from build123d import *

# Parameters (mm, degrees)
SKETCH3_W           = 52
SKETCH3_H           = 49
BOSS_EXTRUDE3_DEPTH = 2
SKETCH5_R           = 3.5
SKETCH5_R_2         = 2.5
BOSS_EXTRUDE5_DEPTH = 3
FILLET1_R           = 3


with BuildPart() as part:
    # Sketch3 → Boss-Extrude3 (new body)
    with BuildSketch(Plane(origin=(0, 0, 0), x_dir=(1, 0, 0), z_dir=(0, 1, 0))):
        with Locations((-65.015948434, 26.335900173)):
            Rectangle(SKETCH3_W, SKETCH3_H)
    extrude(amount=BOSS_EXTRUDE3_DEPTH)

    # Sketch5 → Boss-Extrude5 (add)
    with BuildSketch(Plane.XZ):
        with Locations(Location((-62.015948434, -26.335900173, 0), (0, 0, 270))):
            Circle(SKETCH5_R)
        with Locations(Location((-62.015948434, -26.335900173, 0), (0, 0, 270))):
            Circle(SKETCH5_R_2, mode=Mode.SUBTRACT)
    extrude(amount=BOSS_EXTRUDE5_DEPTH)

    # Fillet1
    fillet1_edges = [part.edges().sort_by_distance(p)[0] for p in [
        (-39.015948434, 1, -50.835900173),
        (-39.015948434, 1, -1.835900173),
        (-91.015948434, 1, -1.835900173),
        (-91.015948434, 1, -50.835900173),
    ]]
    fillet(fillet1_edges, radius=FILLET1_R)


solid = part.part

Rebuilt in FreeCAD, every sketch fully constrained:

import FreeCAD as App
import Part
import Sketcher
from FreeCAD import Vector
Q = App.Units.Quantity


def edges_at(feature, points):
    """Names of the edges that pass closest to the given points."""
    edges = feature.Shape.Edges
    near = lambda p: min(range(len(edges)), key=lambda i: edges[i].distToShape(Part.Vertex(*p))[0])
    return sorted({f"Edge{near(p) + 1}" for p in points})

doc = App.newDocument("Part")
params = doc.addObject("Spreadsheet::Sheet", "Params")
for row, (alias, value) in enumerate([
    ("sketch1_width", "52 mm"),
    ("sketch1_height", "49 mm"),
    ("pad1_length", "2 mm"),
    ("sketch2_diameter", "7 mm"),
    ("sketch2_diameter2", "5 mm"),
    ("pad2_length", "3 mm"),
    ("fillet_radius", "3 mm"),
], start=1):
    params.set(f"A{row}", alias)
    params.set(f"B{row}", "=" + value)
    params.setAlias(f"B{row}", alias)

body = doc.addObject("PartDesign::Body", "Body")

# Sketch on XZ plane
sketch1 = body.newObject("Sketcher::SketchObject", "Sketch")
sketch1.AttachmentSupport = (doc.getObject("XZ_Plane"), [""])
sketch1.MapMode = "FlatFace"
sketch1.addGeometry([
    Part.LineSegment(Vector(-91, -51, 0), Vector(-91, -2, 0)),
    Part.LineSegment(Vector(-91, -2, 0), Vector(-39, -2, 0)),
    Part.LineSegment(Vector(-39, -2, 0), Vector(-39, -51, 0)),
    Part.LineSegment(Vector(-39, -51, 0), Vector(-91, -51, 0)),
], False)
sketch1.addConstraint([
    Sketcher.Constraint("Coincident", 0, 2, 1, 1),
    Sketcher.Constraint("Coincident", 1, 2, 2, 1),
    Sketcher.Constraint("Coincident", 2, 2, 3, 1),
    Sketcher.Constraint("Coincident", 3, 2, 0, 1),
    Sketcher.Constraint("Vertical", 0),
    Sketcher.Constraint("Horizontal", 1),
    Sketcher.Constraint("Vertical", 2),
    Sketcher.Constraint("Horizontal", 3),
    Sketcher.Constraint("DistanceX", 1, 1, 1, 2, Q("52 mm")),
    Sketcher.Constraint("DistanceY", 0, 1, 0, 2, Q("49 mm")),
    Sketcher.Constraint("DistanceY", 0, 2, -1, 1, Q("1.8359 mm")),
    Sketcher.Constraint("DistanceX", 0, 2, -1, 1, Q("91.015948 mm")),
])
sketch1.setExpression("Constraints[8]", "Params.sketch1_width")
sketch1.setExpression("Constraints[9]", "Params.sketch1_height")
pad1 = body.newObject("PartDesign::Pad", "Pad")
pad1.Profile = sketch1
pad1.setExpression("Length", "Params.pad1_length")
pad1.Reversed = True

# Sketch on XZ plane
sketch2 = body.newObject("Sketcher::SketchObject", "Sketch001")
sketch2.AttachmentSupport = (doc.getObject("XZ_Plane"), [""])
sketch2.MapMode = "FlatFace"
sketch2.addGeometry([
    Part.Circle(Vector(-62, -26.3, 0), Vector(0, 0, 1), 3.5),
    Part.Circle(Vector(-62, -26.3, 0), Vector(0, 0, 1), 2.5),
], False)
sketch2.addConstraint([
    Sketcher.Constraint("Coincident", 1, 3, 0, 3),
    Sketcher.Constraint("Diameter", 0, Q("7 mm")),
    Sketcher.Constraint("Diameter", 1, Q("5 mm")),
    Sketcher.Constraint("DistanceY", 0, 3, -1, 1, Q("26.3359 mm")),
    Sketcher.Constraint("DistanceX", 0, 3, -1, 1, Q("62.015948 mm")),
])
sketch2.setExpression("Constraints[1]", "Params.sketch2_diameter")
sketch2.setExpression("Constraints[2]", "Params.sketch2_diameter2")
pad2 = body.newObject("PartDesign::Pad", "Pad001")
pad2.Profile = sketch2
pad2.setExpression("Length", "Params.pad2_length")
doc.recompute()

fillet = body.newObject("PartDesign::Fillet", "Fillet")
fillet.Base = (pad2, edges_at(pad2, [
    (-39.016, 1, -50.836),
    (-39.016, 1, -1.836),
    (-91.016, 1, -1.836),
    (-91.016, 1, -50.836),
]))
fillet.setExpression("Radius", "Params.fillet_radius")

doc.recompute()
